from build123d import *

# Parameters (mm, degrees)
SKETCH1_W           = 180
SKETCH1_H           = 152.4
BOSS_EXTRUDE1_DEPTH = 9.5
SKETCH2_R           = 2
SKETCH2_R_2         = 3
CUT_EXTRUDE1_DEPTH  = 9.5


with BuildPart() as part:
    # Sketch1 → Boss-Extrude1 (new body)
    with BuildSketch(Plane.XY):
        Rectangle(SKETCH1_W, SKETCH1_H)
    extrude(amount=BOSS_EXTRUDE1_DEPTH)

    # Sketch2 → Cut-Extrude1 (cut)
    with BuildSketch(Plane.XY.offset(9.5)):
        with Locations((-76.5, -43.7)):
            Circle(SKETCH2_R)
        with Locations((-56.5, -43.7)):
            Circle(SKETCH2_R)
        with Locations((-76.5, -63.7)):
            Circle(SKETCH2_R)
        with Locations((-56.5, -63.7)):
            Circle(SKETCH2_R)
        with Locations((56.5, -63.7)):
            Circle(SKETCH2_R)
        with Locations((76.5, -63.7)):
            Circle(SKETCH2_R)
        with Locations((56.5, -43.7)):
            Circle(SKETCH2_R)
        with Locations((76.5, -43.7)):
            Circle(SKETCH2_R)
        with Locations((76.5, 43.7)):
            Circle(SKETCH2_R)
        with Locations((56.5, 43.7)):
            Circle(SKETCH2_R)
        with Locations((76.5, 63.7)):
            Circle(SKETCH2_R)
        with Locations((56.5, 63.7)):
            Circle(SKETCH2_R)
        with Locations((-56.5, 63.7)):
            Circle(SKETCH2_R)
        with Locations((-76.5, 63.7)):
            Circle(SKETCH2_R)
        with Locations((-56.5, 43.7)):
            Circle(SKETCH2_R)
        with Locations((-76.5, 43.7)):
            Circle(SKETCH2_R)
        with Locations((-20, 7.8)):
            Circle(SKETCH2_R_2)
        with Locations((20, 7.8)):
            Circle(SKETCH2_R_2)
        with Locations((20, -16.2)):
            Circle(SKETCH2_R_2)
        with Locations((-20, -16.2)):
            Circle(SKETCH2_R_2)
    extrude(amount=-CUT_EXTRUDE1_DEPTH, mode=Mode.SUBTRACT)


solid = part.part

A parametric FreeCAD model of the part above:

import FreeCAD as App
import Part
import Sketcher
Q = App.Units.Quantity

doc = App.newDocument("Part")
params = doc.addObject("Spreadsheet::Sheet", "Params")
for row, (alias, value) in enumerate([
    ("sketch1_width", "180 mm"),
    ("sketch1_height", "152.4 mm"),
    ("pad1_length", "9.5 mm"),
    ("sketch2_diameter", "4 mm"),
    ("sketch2_diameter2", "6 mm"),
    ("pocket1_length", "9.5 mm"),
], start=1):
    params.set(f"A{row}", alias)
    params.set(f"B{row}", "=" + value)
    params.setAlias(f"B{row}", alias)

body = doc.addObject("PartDesign::Body", "Body")

# Sketch on XY plane
sketch1 = doc.addObject("Sketcher::SketchObject", "Sketch")
body.addObject(sketch1)
sketch1.AttachmentSupport = (doc.XY_Plane, [""])
sketch1.MapMode = "FlatFace"
sketch1.addGeometry([
    Part.LineSegment(App.Vector(-90, 76.2, 0), App.Vector(-90, -76.2, 0)),
    Part.LineSegment(App.Vector(-90, -76.2, 0), App.Vector(90, -76.2, 0)),
    Part.LineSegment(App.Vector(90, -76.2, 0), App.Vector(90, 76.2, 0)),
    Part.LineSegment(App.Vector(90, 76.2, 0), App.Vector(-90, 76.2, 0)),
], False)
sketch1.addConstraint([
    Sketcher.Constraint("Coincident", 0, 2, 1, 1),
    Sketcher.Constraint("Coincident", 1, 2, 2, 1),
    Sketcher.Constraint("Coincident", 2, 2, 3, 1),
    Sketcher.Constraint("Coincident", 3, 2, 0, 1),
    Sketcher.Constraint("Vertical", 0),
    Sketcher.Constraint("Horizontal", 1),
    Sketcher.Constraint("Vertical", 2),
    Sketcher.Constraint("Horizontal", 3),
    Sketcher.Constraint("Symmetric", 0, 2, 2, 2, -1, 1),
    Sketcher.Constraint("DistanceX", 1, 1, 1, 2, Q("180 mm")),
    Sketcher.Constraint("DistanceY", 0, 2, 0, 1, Q("152.4 mm")),
])
sketch1.setExpression("Constraints[9]", "Params.sketch1_width")
sketch1.setExpression("Constraints[10]", "Params.sketch1_height")
pad1 = doc.addObject("PartDesign::Pad", "Pad")
body.addObject(pad1)
pad1.Profile = sketch1
pad1.setExpression("Length", "Params.pad1_length")

# Sketch on XY plane
sketch2 = doc.addObject("Sketcher::SketchObject", "Sketch001")
body.addObject(sketch2)
sketch2.AttachmentSupport = (doc.XY_Plane, [""])
sketch2.MapMode = "FlatFace"
sketch2.AttachmentOffset = App.Placement(App.Vector(0, 0, 9.5), App.Rotation())
sketch2.addGeometry([
    Part.Circle(App.Vector(-76.5, -43.7, 0), App.Vector(0, 0, 1), 2),  # 0
    Part.Circle(App.Vector(-56.5, -43.7, 0), App.Vector(0, 0, 1), 2),  # 1
    Part.Circle(App.Vector(-76.5, -63.7, 0), App.Vector(0, 0, 1), 2),  # 2
    Part.Circle(App.Vector(-56.5, -63.7, 0), App.Vector(0, 0, 1), 2),  # 3
    Part.Circle(App.Vector(56.5, -63.7, 0), App.Vector(0, 0, 1), 2),  # 4
    Part.Circle(App.Vector(76.5, -63.7, 0), App.Vector(0, 0, 1), 2),  # 5
    Part.Circle(App.Vector(56.5, -43.7, 0), App.Vector(0, 0, 1), 2),  # 6
    Part.Circle(App.Vector(76.5, -43.7, 0), App.Vector(0, 0, 1), 2),  # 7
    Part.Circle(App.Vector(76.5, 43.7, 0), App.Vector(0, 0, 1), 2),  # 8
    Part.Circle(App.Vector(56.5, 43.7, 0), App.Vector(0, 0, 1), 2),  # 9
    Part.Circle(App.Vector(76.5, 63.7, 0), App.Vector(0, 0, 1), 2),  # 10
    Part.Circle(App.Vector(56.5, 63.7, 0), App.Vector(0, 0, 1), 2),  # 11
    Part.Circle(App.Vector(-56.5, 63.7, 0), App.Vector(0, 0, 1), 2),  # 12
    Part.Circle(App.Vector(-76.5, 63.7, 0), App.Vector(0, 0, 1), 2),  # 13
    Part.Circle(App.Vector(-56.5, 43.7, 0), App.Vector(0, 0, 1), 2),  # 14
    Part.Circle(App.Vector(-76.5, 43.7, 0), App.Vector(0, 0, 1), 2),  # 15
    Part.Circle(App.Vector(-20, 7.8, 0), App.Vector(0, 0, 1), 3),  # 16
    Part.Circle(App.Vector(20, 7.8, 0), App.Vector(0, 0, 1), 3),  # 17
    Part.Circle(App.Vector(20, -16.2, 0), App.Vector(0, 0, 1), 3),  # 18
    Part.Circle(App.Vector(-20, -16.2, 0), App.Vector(0, 0, 1), 3),  # 19
], False)
sketch2.addConstraint([
    Sketcher.Constraint("Equal", 0, 1),
    Sketcher.Constraint("Equal", 1, 2),
    Sketcher.Constraint("Equal", 2, 3),
    Sketcher.Constraint("Equal", 3, 4),
    Sketcher.Constraint("Equal", 4, 5),
    Sketcher.Constraint("Equal", 5, 6),
    Sketcher.Constraint("Equal", 6, 7),
    Sketcher.Constraint("Equal", 7, 8),
    Sketcher.Constraint("Equal", 8, 9),
    Sketcher.Constraint("Equal", 9, 10),
    Sketcher.Constraint("Equal", 10, 11),
    Sketcher.Constraint("Equal", 11, 12),
    Sketcher.Constraint("Equal", 12, 13),
    Sketcher.Constraint("Equal", 13, 14),
    Sketcher.Constraint("Equal", 14, 15),
    Sketcher.Constraint("Equal", 16, 17),
    Sketcher.Constraint("Equal", 17, 18),
    Sketcher.Constraint("Equal", 18, 19),
    Sketcher.Constraint("Symmetric", 0, 3, 8, 3, -1, 1),
    Sketcher.Constraint("Symmetric", 1, 3, 9, 3, -1, 1),
    Sketcher.Constraint("Symmetric", 2, 3, 10, 3, -1, 1),
    Sketcher.Constraint("Symmetric", 3, 3, 11, 3, -1, 1),
    Sketcher.Constraint("Symmetric", 4, 3, 12, 3, -1, 1),
    Sketcher.Constraint("Symmetric", 5, 3, 13, 3, -1, 1),
    Sketcher.Constraint("Symmetric", 6, 3, 14, 3, -1, 1),
    Sketcher.Constraint("Symmetric", 7, 3, 15, 3, -1, 1),
    Sketcher.Constraint("Symmetric", 3, 3, 4, 3, -2),
    Sketcher.Constraint("Symmetric", 2, 3, 5, 3, -2),
    Sketcher.Constraint("Symmetric", 1, 3, 6, 3, -2),
    Sketcher.Constraint("Symmetric", 0, 3, 7, 3, -2),
    Sketcher.Constraint("Symmetric", 16, 3, 17, 3, -2),
    Sketcher.Constraint("Symmetric", 18, 3, 19, 3, -2),
    Sketcher.Constraint("Horizontal", 0, 3, 1, 3),
    Sketcher.Constraint("Horizontal", 2, 3, 3, 3),
    Sketcher.Constraint("Vertical", 0, 3, 2, 3),
    Sketcher.Constraint("Vertical", 1, 3, 3, 3),
    Sketcher.Constraint("Vertical", 17, 3, 18, 3),
    Sketcher.Constraint("Diameter", 0, Q("4 mm")),
    Sketcher.Constraint("Diameter", 16, Q("6 mm")),
    Sketcher.Constraint("DistanceX", 16, 3, -1, 1, Q("20 mm")),
    Sketcher.Constraint("DistanceX", 0, 3, 1, 3, Q("20 mm")),
    Sketcher.Constraint("DistanceY", 2, 3, 0, 3, Q("20 mm")),
    Sketcher.Constraint("DistanceX", 3, 3, 4, 3, Q("113 mm")),
    Sketcher.Constraint("DistanceY", 18, 3, 17, 3, Q("24 mm")),
    Sketcher.Constraint("DistanceY", 0, 3, -1, 1, Q("43.7 mm")),
    Sketcher.Constraint("DistanceY", -1, 1, 16, 3, Q("7.8 mm")),
])
sketch2.setExpression("Constraints[37]", "Params.sketch2_diameter")
sketch2.setExpression("Constraints[38]", "Params.sketch2_diameter2")
pocket1 = doc.addObject("PartDesign::Pocket", "Pocket")
body.addObject(pocket1)
pocket1.Profile = sketch2
pocket1.setExpression("Length", "Params.pocket1_length")

doc.recompute()
